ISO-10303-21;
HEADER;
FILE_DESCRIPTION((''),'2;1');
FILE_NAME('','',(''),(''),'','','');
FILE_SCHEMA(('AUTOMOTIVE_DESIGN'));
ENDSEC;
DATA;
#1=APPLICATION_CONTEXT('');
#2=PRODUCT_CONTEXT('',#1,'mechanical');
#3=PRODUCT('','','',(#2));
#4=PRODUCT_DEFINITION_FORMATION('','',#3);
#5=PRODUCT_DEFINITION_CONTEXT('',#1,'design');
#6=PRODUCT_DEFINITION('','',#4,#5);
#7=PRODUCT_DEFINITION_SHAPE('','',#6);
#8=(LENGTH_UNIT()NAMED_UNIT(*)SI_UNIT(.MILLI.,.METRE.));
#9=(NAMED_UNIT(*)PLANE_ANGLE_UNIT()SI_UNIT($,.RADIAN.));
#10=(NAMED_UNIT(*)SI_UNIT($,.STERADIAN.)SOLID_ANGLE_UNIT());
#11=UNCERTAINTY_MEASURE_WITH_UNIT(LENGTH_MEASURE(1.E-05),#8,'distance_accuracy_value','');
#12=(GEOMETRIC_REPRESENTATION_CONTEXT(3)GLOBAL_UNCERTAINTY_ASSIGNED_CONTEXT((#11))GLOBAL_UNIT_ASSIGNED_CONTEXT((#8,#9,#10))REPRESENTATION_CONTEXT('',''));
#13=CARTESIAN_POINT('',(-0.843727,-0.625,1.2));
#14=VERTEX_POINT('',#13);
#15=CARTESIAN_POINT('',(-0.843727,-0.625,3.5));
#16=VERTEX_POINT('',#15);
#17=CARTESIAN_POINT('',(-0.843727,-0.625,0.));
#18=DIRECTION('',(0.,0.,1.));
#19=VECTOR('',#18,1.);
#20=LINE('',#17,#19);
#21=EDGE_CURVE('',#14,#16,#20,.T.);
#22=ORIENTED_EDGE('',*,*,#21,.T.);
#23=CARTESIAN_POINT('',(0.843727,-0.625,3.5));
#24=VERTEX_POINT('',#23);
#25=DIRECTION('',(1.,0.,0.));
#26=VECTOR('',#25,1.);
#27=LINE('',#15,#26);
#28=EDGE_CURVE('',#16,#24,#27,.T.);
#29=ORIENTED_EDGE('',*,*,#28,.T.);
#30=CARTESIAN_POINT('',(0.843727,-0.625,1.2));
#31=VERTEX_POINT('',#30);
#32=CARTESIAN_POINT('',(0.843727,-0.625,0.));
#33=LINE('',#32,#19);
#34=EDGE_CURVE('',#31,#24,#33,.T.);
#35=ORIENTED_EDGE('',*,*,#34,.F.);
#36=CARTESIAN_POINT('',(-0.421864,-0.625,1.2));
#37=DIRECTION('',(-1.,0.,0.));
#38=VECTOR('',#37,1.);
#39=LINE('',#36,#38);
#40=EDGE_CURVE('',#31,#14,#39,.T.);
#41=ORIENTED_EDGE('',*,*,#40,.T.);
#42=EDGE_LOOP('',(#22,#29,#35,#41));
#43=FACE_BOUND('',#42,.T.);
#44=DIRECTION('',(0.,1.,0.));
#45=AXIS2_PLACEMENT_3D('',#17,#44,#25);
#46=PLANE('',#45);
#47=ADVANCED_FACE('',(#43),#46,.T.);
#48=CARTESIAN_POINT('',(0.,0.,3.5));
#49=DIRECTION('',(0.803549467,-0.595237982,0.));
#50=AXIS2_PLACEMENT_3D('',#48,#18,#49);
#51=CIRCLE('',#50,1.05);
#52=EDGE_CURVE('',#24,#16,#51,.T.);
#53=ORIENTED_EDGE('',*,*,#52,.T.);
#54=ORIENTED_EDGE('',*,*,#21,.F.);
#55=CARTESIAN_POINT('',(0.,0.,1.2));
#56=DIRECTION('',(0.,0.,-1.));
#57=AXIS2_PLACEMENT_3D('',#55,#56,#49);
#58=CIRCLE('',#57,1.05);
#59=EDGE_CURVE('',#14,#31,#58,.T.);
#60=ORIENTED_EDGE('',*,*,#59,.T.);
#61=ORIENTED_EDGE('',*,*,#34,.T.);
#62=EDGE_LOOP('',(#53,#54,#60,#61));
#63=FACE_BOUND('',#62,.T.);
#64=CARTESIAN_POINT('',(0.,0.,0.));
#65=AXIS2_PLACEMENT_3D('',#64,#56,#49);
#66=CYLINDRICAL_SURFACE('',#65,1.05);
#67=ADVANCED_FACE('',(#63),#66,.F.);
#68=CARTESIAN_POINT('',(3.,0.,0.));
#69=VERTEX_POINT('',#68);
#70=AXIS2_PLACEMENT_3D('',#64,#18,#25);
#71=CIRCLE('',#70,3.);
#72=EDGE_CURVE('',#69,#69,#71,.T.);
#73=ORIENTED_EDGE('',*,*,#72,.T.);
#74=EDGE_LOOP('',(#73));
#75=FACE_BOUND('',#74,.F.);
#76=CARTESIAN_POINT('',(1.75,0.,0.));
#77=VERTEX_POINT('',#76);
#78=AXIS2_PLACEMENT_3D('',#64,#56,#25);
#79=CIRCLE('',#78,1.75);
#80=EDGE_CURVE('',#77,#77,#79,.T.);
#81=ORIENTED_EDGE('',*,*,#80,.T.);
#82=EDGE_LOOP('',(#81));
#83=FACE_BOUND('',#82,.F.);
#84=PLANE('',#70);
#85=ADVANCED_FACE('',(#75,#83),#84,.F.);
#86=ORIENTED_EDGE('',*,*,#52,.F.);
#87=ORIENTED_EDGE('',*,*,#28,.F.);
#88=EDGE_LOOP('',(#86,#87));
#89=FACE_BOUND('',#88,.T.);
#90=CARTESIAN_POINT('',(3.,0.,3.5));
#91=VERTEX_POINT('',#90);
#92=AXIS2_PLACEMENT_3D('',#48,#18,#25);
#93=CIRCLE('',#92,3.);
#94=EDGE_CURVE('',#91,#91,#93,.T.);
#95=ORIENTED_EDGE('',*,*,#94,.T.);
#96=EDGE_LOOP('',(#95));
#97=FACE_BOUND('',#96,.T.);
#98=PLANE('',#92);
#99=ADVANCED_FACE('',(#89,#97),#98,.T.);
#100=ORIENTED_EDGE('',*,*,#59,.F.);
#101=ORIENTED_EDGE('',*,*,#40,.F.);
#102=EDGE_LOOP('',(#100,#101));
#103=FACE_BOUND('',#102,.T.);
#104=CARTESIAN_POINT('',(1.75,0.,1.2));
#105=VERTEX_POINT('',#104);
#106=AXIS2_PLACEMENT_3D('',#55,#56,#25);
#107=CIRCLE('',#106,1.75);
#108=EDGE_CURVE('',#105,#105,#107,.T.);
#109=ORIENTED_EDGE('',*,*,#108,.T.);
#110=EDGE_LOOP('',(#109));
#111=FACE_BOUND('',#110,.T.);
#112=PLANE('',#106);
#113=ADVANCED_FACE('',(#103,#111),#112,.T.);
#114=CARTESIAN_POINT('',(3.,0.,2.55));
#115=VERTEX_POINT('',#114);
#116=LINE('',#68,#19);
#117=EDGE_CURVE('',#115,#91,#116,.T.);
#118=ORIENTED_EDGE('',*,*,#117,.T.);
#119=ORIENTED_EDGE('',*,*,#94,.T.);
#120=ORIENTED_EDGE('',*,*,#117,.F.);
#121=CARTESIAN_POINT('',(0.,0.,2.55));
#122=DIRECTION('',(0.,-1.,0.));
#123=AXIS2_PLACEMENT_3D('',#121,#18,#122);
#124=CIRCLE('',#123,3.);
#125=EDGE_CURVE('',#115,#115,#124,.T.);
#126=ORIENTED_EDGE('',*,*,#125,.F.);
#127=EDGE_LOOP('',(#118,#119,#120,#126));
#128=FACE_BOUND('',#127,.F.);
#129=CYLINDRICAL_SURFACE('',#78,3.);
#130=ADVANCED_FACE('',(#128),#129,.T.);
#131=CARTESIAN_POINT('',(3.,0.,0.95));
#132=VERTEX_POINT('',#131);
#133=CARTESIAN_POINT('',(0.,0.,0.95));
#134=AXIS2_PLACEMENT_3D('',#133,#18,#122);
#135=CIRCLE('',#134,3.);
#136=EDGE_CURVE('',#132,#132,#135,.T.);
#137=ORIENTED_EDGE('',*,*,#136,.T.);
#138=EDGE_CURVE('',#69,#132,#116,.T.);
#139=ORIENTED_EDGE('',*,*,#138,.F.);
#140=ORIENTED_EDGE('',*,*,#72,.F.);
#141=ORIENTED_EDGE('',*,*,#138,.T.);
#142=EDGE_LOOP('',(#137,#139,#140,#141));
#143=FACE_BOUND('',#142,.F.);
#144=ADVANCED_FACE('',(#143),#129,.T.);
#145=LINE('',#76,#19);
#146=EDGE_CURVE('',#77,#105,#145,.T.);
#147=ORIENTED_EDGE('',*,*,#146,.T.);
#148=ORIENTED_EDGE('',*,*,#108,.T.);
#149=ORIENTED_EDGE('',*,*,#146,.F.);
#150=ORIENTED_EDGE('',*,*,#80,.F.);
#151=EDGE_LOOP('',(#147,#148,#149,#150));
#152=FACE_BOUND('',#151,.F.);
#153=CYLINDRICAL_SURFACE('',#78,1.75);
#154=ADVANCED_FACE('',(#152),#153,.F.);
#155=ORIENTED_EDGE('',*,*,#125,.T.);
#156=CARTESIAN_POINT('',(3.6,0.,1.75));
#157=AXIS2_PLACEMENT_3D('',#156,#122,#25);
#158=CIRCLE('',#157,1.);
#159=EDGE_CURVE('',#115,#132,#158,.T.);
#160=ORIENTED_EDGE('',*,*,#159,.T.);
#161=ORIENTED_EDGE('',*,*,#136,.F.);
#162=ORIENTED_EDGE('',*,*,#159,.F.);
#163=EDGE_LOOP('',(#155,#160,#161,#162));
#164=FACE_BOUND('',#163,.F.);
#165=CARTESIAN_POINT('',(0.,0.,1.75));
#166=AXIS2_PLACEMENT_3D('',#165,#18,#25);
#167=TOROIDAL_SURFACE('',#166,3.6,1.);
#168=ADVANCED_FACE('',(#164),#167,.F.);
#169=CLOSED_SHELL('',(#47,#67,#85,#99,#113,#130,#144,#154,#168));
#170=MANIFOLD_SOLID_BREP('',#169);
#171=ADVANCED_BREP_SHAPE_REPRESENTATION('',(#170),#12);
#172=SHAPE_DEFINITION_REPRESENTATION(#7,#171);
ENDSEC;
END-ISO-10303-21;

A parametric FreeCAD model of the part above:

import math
import FreeCAD as App
import Part
import Sketcher

V = App.Vector
Q = App.Units.Quantity

doc = App.newDocument("Part")
body = doc.addObject("PartDesign::Body", "Body")

sketch1 = body.newObject("Sketcher::SketchObject", "Sketch")
sketch1.AttachmentSupport = (doc.getObject("XY_Plane"), [""])
sketch1.MapMode = "FlatFace"
sketch1.addGeometry([
    Part.Circle(V(0, 0, 0), V(0, 0, 1), 3),
    Part.ArcOfCircle(Part.Circle(V(0, 0, 0), V(0, 0, 1), 1.05), math.radians(-36.529599), math.radians(216.529599)),
    Part.LineSegment(V(0.843727, -0.625, 0), V(-0.843727, -0.625, 0)),
], False)
sketch1.addConstraint([
    Sketcher.Constraint("Coincident", 1, 1, 2, 1),
    Sketcher.Constraint("Coincident", 2, 2, 1, 2),
    Sketcher.Constraint("Horizontal", 2),
    Sketcher.Constraint("Coincident", 0, 3, -1, 1),
    Sketcher.Constraint("Coincident", 1, 3, -1, 1),
    Sketcher.Constraint("Diameter", 0, Q("6 mm")),
    Sketcher.Constraint("Radius", 1, Q("1.05 mm")),
    Sketcher.Constraint("DistanceY", 1, 1, -1, 1, Q("0.625 mm")),
])
pad1 = body.newObject("PartDesign::Pad", "Pad")
pad1.Profile = sketch1
pad1.Length = 3.5

sketch2 = body.newObject("Sketcher::SketchObject", "Sketch001")
sketch2.AttachmentSupport = (doc.getObject("XY_Plane"), [""])
sketch2.MapMode = "FlatFace"
sketch2.addGeometry(Part.Circle(V(0, 0, 0), V(0, 0, 1), 1.75), False)
sketch2.addConstraint([
    Sketcher.Constraint("Coincident", 0, 3, -1, 1),
    Sketcher.Constraint("Diameter", 0, Q("3.5 mm")),
])
pocket1 = body.newObject("PartDesign::Pocket", "Pocket")
pocket1.Profile = sketch2
pocket1.Length = 1.2
pocket1.Reversed = True

sketch3 = body.newObject("Sketcher::SketchObject", "Sketch002")
sketch3.AttachmentSupport = (doc.getObject("XZ_Plane"), [""])
sketch3.MapMode = "FlatFace"
sketch3.addGeometry(Part.Circle(V(3.6, 1.75, 0), V(0, 0, 1), 1), False)
sketch3.addConstraint([
    Sketcher.Constraint("Diameter", 0, Q("2 mm")),
    Sketcher.Constraint("DistanceX", -1, 1, 0, 3, Q("3.6 mm")),
    Sketcher.Constraint("DistanceY", -1, 1, 0, 3, Q("1.75 mm")),
])
groove = body.newObject("PartDesign::Groove", "Groove")
groove.Profile = sketch3
groove.ReferenceAxis = (sketch3, ["V_Axis"])
groove.Angle = 360

doc.recompute()
